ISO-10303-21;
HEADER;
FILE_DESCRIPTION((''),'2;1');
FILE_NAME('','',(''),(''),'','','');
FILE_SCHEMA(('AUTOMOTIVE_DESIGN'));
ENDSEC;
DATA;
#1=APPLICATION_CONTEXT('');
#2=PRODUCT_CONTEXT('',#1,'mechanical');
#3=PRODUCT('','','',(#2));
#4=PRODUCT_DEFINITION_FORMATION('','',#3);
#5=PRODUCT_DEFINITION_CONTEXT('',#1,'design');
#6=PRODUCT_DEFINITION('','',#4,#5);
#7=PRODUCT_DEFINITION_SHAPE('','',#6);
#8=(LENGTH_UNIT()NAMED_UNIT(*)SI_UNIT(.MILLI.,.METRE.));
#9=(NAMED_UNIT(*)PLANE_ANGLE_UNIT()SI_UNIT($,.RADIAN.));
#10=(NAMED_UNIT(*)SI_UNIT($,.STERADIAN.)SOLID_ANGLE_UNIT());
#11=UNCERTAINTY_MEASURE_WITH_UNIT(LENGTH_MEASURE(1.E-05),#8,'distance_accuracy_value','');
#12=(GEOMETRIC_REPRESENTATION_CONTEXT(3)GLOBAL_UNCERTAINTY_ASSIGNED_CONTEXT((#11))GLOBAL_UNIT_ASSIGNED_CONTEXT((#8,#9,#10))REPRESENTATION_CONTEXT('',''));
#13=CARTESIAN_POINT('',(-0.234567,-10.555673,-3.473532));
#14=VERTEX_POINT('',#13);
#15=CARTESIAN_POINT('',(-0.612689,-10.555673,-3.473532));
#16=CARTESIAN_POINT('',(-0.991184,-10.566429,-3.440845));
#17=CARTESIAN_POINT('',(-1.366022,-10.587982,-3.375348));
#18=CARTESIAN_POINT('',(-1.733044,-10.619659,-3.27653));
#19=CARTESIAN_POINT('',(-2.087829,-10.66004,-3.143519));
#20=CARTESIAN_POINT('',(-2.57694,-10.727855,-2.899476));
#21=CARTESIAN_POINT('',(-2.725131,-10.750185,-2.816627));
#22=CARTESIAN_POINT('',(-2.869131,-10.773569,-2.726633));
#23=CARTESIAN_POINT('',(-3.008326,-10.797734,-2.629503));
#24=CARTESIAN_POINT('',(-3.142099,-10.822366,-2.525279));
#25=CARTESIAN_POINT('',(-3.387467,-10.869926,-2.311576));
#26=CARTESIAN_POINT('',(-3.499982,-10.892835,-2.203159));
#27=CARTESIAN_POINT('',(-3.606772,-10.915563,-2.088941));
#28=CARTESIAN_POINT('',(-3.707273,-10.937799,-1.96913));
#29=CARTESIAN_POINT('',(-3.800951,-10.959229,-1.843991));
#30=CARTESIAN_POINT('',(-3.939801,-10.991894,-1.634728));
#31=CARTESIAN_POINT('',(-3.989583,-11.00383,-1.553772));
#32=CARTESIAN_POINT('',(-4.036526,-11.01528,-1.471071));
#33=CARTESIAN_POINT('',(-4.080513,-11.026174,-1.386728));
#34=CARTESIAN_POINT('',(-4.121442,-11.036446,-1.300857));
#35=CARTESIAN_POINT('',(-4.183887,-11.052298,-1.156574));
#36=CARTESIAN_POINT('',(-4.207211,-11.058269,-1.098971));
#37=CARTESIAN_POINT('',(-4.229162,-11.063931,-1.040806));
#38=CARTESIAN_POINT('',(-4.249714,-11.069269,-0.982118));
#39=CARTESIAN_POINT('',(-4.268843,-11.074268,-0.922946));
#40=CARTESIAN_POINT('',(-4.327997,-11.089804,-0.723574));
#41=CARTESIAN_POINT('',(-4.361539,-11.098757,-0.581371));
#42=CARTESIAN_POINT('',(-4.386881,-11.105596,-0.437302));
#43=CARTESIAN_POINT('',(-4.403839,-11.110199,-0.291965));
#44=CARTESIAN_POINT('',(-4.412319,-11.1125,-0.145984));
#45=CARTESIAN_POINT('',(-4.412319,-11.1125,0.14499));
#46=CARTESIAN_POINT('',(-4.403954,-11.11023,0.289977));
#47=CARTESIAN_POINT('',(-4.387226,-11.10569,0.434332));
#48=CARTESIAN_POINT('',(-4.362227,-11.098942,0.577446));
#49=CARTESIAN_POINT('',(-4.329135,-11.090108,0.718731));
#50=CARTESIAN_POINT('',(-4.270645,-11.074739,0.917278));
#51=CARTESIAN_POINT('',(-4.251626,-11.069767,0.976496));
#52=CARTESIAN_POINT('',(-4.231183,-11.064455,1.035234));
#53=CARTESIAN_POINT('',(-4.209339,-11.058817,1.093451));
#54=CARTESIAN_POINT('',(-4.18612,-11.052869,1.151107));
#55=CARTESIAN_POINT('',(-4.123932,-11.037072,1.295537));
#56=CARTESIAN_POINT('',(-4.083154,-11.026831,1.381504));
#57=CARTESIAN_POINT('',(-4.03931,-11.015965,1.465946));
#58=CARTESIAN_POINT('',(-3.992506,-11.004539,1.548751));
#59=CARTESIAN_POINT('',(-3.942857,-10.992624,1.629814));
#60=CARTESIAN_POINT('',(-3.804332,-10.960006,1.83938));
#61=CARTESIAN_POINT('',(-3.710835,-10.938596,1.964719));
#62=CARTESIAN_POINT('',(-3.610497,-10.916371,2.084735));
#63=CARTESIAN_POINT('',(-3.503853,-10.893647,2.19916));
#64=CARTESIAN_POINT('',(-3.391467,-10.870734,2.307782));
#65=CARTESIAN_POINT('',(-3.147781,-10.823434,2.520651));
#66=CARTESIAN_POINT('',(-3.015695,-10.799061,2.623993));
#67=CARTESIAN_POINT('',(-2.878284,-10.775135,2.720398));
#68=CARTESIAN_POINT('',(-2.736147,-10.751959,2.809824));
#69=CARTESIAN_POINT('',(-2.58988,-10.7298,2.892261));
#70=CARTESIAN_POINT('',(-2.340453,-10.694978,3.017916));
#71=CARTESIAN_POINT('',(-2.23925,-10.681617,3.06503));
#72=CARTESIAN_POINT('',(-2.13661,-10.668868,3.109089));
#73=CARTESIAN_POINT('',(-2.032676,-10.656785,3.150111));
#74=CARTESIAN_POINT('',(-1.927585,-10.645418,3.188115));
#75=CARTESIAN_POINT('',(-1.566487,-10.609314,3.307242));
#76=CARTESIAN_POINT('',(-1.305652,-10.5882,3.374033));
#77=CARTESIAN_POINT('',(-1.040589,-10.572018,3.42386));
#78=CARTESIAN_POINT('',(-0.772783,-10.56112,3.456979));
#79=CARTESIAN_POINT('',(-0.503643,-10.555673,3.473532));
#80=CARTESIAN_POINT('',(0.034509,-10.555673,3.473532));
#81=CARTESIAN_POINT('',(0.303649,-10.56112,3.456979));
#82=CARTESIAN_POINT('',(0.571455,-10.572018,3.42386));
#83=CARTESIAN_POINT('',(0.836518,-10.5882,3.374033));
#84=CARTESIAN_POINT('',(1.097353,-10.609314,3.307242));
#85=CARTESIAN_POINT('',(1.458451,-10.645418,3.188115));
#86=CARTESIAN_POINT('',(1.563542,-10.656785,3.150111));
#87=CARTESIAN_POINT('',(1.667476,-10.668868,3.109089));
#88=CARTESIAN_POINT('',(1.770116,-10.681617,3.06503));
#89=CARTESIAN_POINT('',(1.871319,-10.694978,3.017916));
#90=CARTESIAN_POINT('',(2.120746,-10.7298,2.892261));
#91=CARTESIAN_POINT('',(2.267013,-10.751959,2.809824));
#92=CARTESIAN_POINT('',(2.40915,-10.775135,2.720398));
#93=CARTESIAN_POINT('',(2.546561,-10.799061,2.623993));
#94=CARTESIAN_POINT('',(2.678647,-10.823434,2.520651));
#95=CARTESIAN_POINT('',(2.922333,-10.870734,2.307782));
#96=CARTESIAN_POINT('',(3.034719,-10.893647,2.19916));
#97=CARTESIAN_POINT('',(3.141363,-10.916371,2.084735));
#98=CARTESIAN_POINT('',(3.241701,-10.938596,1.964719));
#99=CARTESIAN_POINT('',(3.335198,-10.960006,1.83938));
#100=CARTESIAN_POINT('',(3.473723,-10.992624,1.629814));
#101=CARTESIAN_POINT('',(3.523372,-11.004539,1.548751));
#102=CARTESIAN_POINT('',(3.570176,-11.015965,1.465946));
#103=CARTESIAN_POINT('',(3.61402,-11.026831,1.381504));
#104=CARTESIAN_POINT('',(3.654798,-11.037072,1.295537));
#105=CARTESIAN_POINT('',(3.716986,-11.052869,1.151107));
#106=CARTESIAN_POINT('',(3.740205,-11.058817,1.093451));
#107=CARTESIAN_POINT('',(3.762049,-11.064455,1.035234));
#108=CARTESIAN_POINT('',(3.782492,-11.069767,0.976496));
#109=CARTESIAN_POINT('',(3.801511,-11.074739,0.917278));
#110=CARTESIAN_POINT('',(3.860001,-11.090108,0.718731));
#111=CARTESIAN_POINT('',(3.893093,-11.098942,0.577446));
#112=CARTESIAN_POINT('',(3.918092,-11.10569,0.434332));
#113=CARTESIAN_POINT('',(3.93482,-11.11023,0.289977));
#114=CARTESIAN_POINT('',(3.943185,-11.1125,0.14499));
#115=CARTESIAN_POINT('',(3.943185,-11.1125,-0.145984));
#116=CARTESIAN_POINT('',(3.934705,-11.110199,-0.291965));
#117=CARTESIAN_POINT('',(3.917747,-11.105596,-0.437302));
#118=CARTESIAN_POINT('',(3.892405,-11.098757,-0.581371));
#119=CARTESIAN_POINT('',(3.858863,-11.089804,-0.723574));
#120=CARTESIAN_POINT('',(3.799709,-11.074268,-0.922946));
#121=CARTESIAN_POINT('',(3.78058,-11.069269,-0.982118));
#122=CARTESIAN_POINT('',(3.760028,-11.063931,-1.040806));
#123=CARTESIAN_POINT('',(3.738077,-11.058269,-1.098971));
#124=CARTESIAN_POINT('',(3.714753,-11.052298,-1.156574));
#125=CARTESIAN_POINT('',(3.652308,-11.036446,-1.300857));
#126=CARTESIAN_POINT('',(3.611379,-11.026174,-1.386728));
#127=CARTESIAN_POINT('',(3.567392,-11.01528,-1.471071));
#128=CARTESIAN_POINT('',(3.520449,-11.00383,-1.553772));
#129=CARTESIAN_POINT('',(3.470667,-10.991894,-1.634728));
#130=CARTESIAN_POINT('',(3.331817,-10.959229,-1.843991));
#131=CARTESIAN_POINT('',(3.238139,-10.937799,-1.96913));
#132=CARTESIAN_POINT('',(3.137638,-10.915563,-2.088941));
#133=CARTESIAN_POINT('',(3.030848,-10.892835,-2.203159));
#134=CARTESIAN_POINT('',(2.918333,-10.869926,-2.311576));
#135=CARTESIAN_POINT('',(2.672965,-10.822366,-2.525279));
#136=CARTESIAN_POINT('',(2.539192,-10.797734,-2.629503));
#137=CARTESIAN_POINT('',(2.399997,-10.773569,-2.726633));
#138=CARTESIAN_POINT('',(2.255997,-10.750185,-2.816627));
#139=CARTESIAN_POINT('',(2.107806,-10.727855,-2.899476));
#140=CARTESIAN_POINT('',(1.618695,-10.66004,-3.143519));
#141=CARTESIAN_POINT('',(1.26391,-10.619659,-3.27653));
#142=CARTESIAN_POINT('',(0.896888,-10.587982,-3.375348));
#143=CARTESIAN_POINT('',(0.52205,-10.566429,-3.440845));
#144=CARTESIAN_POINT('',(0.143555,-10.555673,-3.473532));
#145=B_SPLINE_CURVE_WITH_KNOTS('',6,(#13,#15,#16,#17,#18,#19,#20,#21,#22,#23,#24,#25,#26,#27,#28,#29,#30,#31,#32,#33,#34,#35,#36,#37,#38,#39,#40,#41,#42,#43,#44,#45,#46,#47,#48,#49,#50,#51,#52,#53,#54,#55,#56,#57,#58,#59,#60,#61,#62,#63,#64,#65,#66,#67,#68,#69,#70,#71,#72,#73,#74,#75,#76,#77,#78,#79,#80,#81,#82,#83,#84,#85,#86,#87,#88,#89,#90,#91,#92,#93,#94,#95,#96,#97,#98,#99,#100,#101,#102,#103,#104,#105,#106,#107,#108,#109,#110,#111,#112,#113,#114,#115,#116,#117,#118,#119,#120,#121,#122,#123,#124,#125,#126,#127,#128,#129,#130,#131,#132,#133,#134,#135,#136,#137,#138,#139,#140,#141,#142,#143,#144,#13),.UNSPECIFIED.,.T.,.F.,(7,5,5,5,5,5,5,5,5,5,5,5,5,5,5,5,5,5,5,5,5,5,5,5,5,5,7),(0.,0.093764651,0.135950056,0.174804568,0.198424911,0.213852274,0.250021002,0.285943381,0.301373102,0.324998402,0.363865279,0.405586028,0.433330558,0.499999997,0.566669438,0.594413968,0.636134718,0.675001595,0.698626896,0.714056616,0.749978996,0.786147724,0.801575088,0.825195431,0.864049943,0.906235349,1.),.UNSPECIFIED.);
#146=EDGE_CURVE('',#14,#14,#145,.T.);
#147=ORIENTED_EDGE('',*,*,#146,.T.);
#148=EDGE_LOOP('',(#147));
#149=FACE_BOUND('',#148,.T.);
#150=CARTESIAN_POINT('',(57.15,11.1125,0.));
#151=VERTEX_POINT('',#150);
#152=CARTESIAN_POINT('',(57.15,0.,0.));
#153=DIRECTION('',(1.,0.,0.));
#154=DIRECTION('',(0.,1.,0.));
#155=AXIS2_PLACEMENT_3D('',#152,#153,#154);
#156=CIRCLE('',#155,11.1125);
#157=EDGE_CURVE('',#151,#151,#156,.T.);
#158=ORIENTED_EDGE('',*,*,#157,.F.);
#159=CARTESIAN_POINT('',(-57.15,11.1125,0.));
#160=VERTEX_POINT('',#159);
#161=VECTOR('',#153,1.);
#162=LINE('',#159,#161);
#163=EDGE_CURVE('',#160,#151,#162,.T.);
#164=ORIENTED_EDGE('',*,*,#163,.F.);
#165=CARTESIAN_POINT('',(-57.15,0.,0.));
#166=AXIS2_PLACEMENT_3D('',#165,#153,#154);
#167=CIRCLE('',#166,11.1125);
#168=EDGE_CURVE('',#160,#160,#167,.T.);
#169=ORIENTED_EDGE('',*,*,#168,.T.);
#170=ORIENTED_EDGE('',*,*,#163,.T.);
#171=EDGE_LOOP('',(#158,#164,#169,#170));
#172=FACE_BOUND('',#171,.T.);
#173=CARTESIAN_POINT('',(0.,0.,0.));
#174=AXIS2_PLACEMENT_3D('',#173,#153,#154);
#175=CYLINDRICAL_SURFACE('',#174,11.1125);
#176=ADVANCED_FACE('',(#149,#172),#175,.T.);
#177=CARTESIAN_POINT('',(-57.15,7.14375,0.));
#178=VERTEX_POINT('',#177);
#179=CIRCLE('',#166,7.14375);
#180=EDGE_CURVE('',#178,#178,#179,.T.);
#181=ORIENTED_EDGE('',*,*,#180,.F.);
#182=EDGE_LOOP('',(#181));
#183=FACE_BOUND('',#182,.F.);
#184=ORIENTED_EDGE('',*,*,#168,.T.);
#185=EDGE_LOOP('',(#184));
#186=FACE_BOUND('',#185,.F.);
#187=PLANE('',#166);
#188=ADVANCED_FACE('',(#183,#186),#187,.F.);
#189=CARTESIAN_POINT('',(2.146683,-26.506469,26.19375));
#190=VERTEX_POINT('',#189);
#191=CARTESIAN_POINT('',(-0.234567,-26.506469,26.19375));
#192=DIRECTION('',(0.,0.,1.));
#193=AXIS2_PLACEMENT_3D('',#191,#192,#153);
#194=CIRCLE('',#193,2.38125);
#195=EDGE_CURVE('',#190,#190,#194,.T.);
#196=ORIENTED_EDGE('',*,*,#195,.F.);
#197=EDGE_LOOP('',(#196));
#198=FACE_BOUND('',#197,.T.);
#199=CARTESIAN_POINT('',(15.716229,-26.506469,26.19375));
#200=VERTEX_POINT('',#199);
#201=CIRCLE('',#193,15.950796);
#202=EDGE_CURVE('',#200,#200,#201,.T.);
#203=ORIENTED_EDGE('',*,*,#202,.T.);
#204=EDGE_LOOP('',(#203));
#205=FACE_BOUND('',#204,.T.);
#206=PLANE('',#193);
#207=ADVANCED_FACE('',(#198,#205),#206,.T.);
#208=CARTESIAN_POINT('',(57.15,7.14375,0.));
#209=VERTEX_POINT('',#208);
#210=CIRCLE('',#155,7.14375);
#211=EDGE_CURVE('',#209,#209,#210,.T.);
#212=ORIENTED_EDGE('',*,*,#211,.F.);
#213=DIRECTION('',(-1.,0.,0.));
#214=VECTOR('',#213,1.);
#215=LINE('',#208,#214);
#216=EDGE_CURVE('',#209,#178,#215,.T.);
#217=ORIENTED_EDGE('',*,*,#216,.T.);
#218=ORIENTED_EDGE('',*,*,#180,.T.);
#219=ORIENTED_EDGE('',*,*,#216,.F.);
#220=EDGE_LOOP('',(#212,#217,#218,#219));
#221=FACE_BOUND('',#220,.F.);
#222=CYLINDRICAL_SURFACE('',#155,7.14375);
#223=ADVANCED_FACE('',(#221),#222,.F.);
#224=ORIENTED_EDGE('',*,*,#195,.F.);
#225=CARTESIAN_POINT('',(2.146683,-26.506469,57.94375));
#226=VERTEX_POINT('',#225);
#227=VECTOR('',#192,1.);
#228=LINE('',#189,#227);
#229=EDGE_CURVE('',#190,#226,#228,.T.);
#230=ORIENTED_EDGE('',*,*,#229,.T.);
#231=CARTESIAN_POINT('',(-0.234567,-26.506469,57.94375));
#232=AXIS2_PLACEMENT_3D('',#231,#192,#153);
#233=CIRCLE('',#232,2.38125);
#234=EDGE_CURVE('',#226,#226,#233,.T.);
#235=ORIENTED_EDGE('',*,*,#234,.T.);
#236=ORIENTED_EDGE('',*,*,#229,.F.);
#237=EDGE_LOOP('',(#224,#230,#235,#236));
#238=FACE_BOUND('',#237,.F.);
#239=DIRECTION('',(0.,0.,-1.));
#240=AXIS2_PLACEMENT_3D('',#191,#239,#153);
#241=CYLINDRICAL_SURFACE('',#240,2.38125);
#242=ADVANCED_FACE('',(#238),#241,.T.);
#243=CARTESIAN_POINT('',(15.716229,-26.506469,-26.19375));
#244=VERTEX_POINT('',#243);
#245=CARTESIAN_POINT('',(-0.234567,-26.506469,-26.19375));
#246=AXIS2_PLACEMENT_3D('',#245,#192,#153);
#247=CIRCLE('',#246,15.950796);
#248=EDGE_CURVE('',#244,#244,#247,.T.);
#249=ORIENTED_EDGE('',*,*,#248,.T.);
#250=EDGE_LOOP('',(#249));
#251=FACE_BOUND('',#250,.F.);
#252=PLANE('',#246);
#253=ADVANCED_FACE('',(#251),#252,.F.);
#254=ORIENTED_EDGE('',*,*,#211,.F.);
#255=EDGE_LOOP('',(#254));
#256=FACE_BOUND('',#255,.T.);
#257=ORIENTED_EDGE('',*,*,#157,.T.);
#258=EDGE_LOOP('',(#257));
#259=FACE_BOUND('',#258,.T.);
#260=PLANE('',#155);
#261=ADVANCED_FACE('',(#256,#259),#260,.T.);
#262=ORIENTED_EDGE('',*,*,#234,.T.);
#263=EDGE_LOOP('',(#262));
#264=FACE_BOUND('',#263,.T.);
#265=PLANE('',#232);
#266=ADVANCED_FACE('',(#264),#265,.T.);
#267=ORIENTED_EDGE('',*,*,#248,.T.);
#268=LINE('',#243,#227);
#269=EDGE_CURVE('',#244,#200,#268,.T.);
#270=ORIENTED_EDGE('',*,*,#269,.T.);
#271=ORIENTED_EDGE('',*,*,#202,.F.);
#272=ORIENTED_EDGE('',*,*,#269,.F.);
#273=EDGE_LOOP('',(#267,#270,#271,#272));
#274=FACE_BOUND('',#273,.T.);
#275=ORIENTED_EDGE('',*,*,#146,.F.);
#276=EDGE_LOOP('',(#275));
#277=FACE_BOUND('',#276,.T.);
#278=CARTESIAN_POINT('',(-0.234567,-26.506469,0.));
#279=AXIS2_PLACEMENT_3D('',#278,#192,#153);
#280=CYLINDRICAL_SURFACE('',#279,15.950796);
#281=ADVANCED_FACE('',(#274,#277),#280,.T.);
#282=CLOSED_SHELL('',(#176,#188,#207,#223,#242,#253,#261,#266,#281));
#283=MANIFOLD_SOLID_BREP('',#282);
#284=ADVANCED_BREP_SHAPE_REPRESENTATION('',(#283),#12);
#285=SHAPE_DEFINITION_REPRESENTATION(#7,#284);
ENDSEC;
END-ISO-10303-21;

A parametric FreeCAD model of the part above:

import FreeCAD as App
import Part
import Sketcher

V = App.Vector
Q = App.Units.Quantity

doc = App.newDocument("Part")
body = doc.addObject("PartDesign::Body", "Body")

sketch1 = body.newObject("Sketcher::SketchObject", "Sketch")
sketch1.AttachmentSupport = (doc.getObject("YZ_Plane"), [""])
sketch1.MapMode = "FlatFace"
sketch1.addGeometry(Part.Circle(V(0, 0, 0), V(0, 0, 1), 11.1125), False)
sketch1.addConstraint([
    Sketcher.Constraint("Coincident", 0, 3, -1, 1),
    Sketcher.Constraint("Diameter", 0, Q("0.875 in")),
])
pad1 = body.newObject("PartDesign::Pad", "Pad")
pad1.Profile = sketch1
pad1.Length = Q("4.5 in")
pad1.Midplane = True

sketch2 = body.newObject("Sketcher::SketchObject", "Sketch001")
sketch2.AttachmentSupport = (doc.getObject("YZ_Plane"), [""])
sketch2.MapMode = "FlatFace"
sketch2.AttachmentOffset = App.Placement(V(0, 0, 2.25 * 25.4), App.Rotation())
sketch2.addGeometry(Part.Circle(V(0, 0, 0), V(0, 0, 1), 7.14375), False)
sketch2.addConstraint([
    Sketcher.Constraint("Coincident", 0, 3, -1, 1),
    Sketcher.Constraint("Diameter", 0, Q("0.5625 in")),
])
pocket1 = body.newObject("PartDesign::Pocket", "Pocket")
pocket1.Profile = sketch2
pocket1.Length = Q("4.5 in")

sketch3 = body.newObject("Sketcher::SketchObject", "Sketch002")
sketch3.AttachmentSupport = (doc.getObject("XY_Plane"), [""])
sketch3.MapMode = "FlatFace"
sketch3.addGeometry(Part.Circle(V(-0.234567, -26.506469, 0), V(0, 0, 1), 15.950796), False)
sketch3.addConstraint([
    Sketcher.Constraint("Diameter", 0, Q("31.901592 mm")),
    Sketcher.Constraint("DistanceY", 0, 3, -1, 1, Q("26.506469 mm")),
    Sketcher.Constraint("DistanceX", 0, 3, -1, 1, Q("0.234567 mm")),
])
pad2 = body.newObject("PartDesign::Pad", "Pad001")
pad2.Profile = sketch3
pad2.Length = Q("2.0625 in")
pad2.Midplane = True

sketch4 = body.newObject("Sketcher::SketchObject", "Sketch003")
sketch4.AttachmentSupport = (doc.getObject("XY_Plane"), [""])
sketch4.MapMode = "FlatFace"
sketch4.AttachmentOffset = App.Placement(V(0, 0, 1.03125 * 25.4), App.Rotation())
sketch4.addGeometry(Part.Circle(V(-0.234567, -26.506469, 0), V(0, 0, 1), 2.38125), False)
sketch4.addConstraint([
    Sketcher.Constraint("Diameter", 0, Q("0.1875 in")),
    Sketcher.Constraint("DistanceY", 0, 3, -1, 1, Q("26.506469 mm")),
    Sketcher.Constraint("DistanceX", 0, 3, -1, 1, Q("0.234567 mm")),
])
pad3 = body.newObject("PartDesign::Pad", "Pad002")
pad3.Profile = sketch4
pad3.Length = Q("1.25 in")

doc.recompute()
